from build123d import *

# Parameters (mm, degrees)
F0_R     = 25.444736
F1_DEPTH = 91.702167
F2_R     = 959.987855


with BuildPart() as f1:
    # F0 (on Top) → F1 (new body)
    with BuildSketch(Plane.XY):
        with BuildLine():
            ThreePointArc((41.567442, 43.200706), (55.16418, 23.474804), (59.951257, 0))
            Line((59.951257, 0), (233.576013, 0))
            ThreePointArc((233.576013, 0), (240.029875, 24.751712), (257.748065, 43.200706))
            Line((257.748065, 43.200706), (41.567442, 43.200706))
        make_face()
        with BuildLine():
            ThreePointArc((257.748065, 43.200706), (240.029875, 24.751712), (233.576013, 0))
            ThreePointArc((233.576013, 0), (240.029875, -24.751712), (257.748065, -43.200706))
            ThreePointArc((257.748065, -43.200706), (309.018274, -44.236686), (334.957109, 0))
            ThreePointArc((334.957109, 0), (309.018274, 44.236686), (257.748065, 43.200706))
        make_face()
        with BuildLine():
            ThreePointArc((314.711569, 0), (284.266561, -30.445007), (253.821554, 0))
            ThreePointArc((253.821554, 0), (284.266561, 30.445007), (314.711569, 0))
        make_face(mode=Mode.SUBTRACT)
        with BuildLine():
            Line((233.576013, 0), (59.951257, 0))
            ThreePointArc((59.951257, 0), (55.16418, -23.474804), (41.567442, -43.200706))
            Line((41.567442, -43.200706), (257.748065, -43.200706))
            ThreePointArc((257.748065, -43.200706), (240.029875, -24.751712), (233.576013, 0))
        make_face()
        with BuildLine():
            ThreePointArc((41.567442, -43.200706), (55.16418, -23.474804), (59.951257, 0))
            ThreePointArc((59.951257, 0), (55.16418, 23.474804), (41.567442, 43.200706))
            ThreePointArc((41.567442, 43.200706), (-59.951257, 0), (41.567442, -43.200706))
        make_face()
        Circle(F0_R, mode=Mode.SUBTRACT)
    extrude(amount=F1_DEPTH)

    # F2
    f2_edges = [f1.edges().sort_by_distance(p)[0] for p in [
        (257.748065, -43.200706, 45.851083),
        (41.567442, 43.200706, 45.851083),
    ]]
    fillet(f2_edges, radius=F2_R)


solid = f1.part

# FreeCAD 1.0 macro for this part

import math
import FreeCAD as App
import Part
import Sketcher

V = App.Vector
Q = App.Units.Quantity


def edges_at(feature, points):
    """Names of the edges that pass closest to the given points."""
    edges = feature.Shape.Edges
    near = lambda p: min(range(len(edges)), key=lambda i: edges[i].distToShape(Part.Vertex(*p))[0])
    return sorted({f"Edge{near(p) + 1}" for p in points})

doc = App.newDocument("Part")
body = doc.addObject("PartDesign::Body", "Body")

# Sketch on XY plane
sketch1 = body.newObject("Sketcher::SketchObject", "Sketch")
sketch1.AttachmentSupport = (doc.getObject("XY_Plane"), [""])
sketch1.MapMode = "FlatFace"
sketch1.addGeometry(Part.LineSegment(V(42, -43, 0), V(258, -43, 0)), False)
sketch1.addGeometry(Part.ArcOfCircle(Part.Circle(V(284, 0, 0), V(0, 0, 1), 51), math.radians(-122), math.radians(0)), False)
sketch1.addGeometry(Part.ArcOfCircle(Part.Circle(V(284, 0, 0), V(0, 0, 1), 51), math.radians(0), math.radians(122)), False)
sketch1.addGeometry(Part.LineSegment(V(258, 43, 0), V(42, 43, 0)), False)
sketch1.addGeometry(Part.ArcOfCircle(Part.Circle(V(0, 0, 0), V(0, 0, 1), 60), math.radians(46), math.radians(314)), False)
sketch1.addGeometry(Part.Circle(V(0, 0, 0), V(0, 0, 1), 25), False)
sketch1.addGeometry(Part.ArcOfCircle(Part.Circle(V(284, 0, 0), V(0, 0, 1), 30), math.radians(0), math.radians(180)), False)
sketch1.addGeometry(Part.ArcOfCircle(Part.Circle(V(284, 0, 0), V(0, 0, 1), 30), math.radians(-180), math.radians(0)), False)
sketch1.addConstraint(Sketcher.Constraint("Coincident", 0, 2, 1, 1))
sketch1.addConstraint(Sketcher.Constraint("Tangent", 1, 2, 2, 1))
sketch1.addConstraint(Sketcher.Constraint("Coincident", 2, 2, 3, 1))
sketch1.addConstraint(Sketcher.Constraint("Coincident", 3, 2, 4, 1))
sketch1.addConstraint(Sketcher.Constraint("Coincident", 4, 2, 0, 1))
sketch1.addConstraint(Sketcher.Constraint("Tangent", 6, 1, 7, 2))
sketch1.addConstraint(Sketcher.Constraint("Coincident", 7, 1, 6, 2))
sketch1.addConstraint(Sketcher.Constraint("Horizontal", 0))
sketch1.addConstraint(Sketcher.Constraint("Horizontal", 3))
sketch1.addConstraint(Sketcher.Constraint("Coincident", 4, 3, -1, 1))
sketch1.addConstraint(Sketcher.Constraint("Coincident", 5, 3, -1, 1))
sketch1.addConstraint(Sketcher.Constraint("Coincident", 6, 3, 1, 3))
sketch1.addConstraint(Sketcher.Constraint("Equal", 1, 2))
sketch1.addConstraint(Sketcher.Constraint("Symmetric", 0, 2, 2, 2, -1))
sketch1.addConstraint(Sketcher.Constraint("PointOnObject", 1, 2, -1))
sketch1.addConstraint(Sketcher.Constraint("PointOnObject", 6, 1, -1))
sketch1.addConstraint(Sketcher.Constraint("PointOnObject", 7, 1, -1))
sketch1.addConstraint(Sketcher.Constraint("Diameter", 5, Q("50.889472 mm")))
sketch1.addConstraint(Sketcher.Constraint("Radius", 1, Q("50.690547 mm")))
sketch1.addConstraint(Sketcher.Constraint("Radius", 4, Q("59.951257 mm")))
sketch1.addConstraint(Sketcher.Constraint("Radius", 6, Q("30.445007 mm")))
sketch1.addConstraint(Sketcher.Constraint("DistanceX", 0, 1, 0, 2, Q("216.180623 mm")))
sketch1.addConstraint(Sketcher.Constraint("DistanceX", -1, 1, 1, 3, Q("284.266562 mm")))
pad1 = body.newObject("PartDesign::Pad", "Pad")
pad1.Profile = sketch1
pad1.Length = 91.702167
doc.recompute()

fillet = body.newObject("PartDesign::Fillet", "Fillet")
fillet.Base = (pad1, edges_at(pad1, [(257.748, -43.201, 45.851), (41.567, 43.201, 45.851)]))
fillet.Radius = 959.987855

doc.recompute()
